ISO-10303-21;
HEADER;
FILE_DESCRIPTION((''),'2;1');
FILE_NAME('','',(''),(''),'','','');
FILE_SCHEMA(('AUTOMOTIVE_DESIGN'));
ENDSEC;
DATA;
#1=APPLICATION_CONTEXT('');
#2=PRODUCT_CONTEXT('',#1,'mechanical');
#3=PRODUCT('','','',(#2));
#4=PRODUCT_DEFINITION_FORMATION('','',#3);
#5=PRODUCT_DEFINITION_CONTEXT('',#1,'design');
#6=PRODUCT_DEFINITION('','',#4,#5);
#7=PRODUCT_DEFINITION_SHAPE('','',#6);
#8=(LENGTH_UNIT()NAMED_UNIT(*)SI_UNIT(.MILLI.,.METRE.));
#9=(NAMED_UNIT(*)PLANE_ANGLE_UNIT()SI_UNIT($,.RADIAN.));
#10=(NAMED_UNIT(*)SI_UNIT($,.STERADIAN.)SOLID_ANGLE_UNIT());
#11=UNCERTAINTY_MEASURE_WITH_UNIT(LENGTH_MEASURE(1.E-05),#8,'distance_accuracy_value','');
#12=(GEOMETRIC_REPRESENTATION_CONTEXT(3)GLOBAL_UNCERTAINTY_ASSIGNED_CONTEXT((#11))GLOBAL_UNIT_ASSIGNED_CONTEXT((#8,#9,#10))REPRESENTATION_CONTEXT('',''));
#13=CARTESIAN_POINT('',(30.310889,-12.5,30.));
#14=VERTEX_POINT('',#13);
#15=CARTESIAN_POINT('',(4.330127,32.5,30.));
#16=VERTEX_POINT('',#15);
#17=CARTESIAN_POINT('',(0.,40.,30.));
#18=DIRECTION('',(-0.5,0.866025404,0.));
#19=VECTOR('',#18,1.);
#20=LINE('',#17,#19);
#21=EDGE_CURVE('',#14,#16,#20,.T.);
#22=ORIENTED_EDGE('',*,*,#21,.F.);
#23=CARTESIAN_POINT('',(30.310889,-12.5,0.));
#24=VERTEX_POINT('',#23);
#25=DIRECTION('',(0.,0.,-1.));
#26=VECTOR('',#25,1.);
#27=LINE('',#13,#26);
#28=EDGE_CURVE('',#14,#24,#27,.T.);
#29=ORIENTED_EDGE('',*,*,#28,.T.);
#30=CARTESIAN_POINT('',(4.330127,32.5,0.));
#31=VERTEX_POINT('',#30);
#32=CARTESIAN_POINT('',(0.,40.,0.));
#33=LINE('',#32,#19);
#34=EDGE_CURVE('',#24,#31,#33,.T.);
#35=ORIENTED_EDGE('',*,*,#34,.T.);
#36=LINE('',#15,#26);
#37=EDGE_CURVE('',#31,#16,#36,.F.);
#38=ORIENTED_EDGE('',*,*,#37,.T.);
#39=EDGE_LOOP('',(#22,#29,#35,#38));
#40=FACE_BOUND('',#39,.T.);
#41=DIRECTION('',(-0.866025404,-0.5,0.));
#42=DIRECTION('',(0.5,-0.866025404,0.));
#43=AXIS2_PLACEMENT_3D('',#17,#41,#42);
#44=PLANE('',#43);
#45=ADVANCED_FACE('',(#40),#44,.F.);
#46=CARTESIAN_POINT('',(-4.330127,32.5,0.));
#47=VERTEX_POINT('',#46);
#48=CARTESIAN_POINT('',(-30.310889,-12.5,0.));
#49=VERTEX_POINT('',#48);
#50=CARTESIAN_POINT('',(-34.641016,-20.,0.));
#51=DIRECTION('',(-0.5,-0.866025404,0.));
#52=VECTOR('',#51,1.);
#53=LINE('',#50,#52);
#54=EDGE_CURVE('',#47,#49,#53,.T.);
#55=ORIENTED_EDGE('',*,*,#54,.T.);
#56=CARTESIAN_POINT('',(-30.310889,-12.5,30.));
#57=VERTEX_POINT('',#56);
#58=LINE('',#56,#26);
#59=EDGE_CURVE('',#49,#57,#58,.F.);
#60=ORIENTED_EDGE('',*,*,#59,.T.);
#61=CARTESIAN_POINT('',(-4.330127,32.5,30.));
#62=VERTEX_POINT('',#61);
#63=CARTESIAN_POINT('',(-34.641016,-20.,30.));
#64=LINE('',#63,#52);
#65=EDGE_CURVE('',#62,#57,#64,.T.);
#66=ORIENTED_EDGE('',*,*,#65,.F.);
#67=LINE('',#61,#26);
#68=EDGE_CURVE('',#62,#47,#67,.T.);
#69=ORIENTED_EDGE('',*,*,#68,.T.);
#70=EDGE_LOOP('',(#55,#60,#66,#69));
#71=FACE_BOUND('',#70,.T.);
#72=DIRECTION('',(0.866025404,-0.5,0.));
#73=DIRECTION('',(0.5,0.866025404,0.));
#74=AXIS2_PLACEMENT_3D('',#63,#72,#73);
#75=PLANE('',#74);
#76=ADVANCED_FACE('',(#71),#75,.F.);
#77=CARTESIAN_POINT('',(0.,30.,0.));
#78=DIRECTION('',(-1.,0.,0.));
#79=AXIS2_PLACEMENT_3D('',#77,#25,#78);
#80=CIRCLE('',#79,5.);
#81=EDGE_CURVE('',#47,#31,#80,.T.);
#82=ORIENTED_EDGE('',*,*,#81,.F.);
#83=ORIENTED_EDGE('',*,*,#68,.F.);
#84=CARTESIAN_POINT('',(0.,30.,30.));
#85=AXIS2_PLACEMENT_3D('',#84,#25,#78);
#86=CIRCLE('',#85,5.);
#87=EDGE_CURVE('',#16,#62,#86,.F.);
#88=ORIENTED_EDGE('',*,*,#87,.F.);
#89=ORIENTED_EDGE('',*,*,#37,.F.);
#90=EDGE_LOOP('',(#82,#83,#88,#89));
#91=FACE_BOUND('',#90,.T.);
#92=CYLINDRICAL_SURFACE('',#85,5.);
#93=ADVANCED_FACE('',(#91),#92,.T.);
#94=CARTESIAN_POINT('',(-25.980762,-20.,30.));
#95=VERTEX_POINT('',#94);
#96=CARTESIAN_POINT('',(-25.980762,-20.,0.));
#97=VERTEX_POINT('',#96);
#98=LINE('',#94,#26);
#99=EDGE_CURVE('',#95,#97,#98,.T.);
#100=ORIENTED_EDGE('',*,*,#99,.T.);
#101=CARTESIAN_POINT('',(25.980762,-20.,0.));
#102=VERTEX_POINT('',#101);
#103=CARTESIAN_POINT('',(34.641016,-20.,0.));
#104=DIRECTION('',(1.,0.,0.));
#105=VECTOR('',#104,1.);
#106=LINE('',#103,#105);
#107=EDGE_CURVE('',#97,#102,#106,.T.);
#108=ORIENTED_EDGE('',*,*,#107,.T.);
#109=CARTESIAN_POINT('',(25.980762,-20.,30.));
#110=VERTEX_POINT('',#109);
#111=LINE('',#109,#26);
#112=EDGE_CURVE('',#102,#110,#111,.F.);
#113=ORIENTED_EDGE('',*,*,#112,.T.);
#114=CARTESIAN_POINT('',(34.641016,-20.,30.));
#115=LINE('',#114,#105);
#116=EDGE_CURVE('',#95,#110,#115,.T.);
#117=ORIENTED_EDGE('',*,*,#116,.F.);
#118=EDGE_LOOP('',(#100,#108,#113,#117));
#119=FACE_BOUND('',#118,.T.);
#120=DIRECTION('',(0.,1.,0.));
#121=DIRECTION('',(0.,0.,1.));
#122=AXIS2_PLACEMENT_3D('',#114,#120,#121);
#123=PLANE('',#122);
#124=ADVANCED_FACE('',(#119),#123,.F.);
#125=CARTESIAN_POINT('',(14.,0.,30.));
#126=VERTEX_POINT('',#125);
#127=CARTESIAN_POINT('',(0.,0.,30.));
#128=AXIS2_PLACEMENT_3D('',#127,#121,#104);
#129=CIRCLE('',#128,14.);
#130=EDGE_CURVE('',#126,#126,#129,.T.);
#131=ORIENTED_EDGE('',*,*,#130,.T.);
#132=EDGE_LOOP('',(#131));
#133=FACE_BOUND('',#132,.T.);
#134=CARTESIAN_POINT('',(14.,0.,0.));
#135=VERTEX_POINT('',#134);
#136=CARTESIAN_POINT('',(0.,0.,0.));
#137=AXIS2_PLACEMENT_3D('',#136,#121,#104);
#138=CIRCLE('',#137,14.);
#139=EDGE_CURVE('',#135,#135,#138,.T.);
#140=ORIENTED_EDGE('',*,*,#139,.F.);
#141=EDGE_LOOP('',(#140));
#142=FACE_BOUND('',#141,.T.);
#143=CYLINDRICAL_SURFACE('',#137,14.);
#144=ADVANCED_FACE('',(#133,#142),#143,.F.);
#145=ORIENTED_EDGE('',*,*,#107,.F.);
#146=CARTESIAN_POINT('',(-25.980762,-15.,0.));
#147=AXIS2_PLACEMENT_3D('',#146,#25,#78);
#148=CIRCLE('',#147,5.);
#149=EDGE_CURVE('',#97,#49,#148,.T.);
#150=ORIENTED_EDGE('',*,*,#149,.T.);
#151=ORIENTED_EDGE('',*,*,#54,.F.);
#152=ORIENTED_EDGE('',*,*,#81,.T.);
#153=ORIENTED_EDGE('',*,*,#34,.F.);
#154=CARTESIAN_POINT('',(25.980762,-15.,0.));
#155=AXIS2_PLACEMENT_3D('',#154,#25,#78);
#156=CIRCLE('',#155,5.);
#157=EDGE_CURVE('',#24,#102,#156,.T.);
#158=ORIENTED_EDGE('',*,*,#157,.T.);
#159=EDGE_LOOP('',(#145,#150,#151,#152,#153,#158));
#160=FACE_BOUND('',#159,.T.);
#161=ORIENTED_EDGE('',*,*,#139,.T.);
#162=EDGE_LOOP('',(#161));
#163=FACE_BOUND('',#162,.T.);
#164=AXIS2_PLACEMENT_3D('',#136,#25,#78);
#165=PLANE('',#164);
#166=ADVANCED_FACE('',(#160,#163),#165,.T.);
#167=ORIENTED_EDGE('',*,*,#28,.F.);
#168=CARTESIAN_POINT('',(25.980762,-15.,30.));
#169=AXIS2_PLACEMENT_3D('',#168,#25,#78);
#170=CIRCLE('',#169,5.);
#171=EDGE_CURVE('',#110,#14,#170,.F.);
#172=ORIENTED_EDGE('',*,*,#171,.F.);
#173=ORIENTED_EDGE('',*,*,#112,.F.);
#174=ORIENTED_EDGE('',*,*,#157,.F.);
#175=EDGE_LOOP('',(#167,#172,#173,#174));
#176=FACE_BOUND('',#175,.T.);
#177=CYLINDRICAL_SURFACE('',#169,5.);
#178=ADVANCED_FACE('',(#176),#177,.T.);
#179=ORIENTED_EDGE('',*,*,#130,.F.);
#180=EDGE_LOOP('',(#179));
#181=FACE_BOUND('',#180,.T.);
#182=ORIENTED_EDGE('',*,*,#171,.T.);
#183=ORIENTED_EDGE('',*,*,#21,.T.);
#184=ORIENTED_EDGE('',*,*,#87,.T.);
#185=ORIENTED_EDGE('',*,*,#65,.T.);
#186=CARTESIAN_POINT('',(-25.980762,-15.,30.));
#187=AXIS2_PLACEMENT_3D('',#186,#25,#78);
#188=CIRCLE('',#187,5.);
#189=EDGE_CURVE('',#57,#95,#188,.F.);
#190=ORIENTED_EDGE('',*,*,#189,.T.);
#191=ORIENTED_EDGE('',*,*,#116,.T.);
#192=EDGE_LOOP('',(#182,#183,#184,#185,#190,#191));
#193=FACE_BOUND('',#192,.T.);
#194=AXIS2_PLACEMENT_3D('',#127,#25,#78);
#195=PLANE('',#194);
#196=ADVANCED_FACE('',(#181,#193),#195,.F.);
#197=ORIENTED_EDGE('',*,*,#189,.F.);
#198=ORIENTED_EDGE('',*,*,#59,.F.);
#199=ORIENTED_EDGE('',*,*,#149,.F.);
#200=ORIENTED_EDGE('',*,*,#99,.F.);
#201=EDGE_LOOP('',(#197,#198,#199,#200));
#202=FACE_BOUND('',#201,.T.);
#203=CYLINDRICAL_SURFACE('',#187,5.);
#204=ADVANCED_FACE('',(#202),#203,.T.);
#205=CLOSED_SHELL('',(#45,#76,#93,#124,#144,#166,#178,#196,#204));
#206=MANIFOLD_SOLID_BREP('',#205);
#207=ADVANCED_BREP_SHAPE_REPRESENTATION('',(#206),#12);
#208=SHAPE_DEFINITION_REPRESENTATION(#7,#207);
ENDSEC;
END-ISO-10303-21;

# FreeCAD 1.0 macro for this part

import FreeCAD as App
import Part
import Sketcher

V = App.Vector
Q = App.Units.Quantity


def edges_at(feature, points):
    """Names of the edges that pass closest to the given points."""
    edges = feature.Shape.Edges
    near = lambda p: min(range(len(edges)), key=lambda i: edges[i].distToShape(Part.Vertex(*p))[0])
    return sorted({f"Edge{near(p) + 1}" for p in points})

doc = App.newDocument("Part")
body = doc.addObject("PartDesign::Body", "Body")

# Sketch on XY plane
sketch1 = body.newObject("Sketcher::SketchObject", "Sketch")
sketch1.AttachmentSupport = (doc.getObject("XY_Plane"), [""])
sketch1.MapMode = "FlatFace"
sketch1.addGeometry(Part.LineSegment(V(34.641016, -20, 0), V(0, 40, 0)), False)
sketch1.addGeometry(Part.LineSegment(V(0, 40, 0), V(-34.641016, -20, 0)), False)
sketch1.addGeometry(Part.LineSegment(V(-34.641016, -20, 0), V(34.641016, -20, 0)), False)
sketch1.addConstraint(Sketcher.Constraint("Coincident", 0, 2, 1, 1))
sketch1.addConstraint(Sketcher.Constraint("Coincident", 1, 2, 2, 1))
sketch1.addConstraint(Sketcher.Constraint("Coincident", 2, 2, 0, 1))
sketch1.addConstraint(Sketcher.Constraint("Horizontal", 2))
sketch1.addConstraint(Sketcher.Constraint("PointOnObject", 0, 2, -2))
sketch1.addConstraint(Sketcher.Constraint("Equal", 0, 1))
sketch1.addConstraint(Sketcher.Constraint("Angle", 0, Q("120 deg")))
sketch1.addConstraint(Sketcher.Constraint("DistanceY", -1, 1, 0, 2, 40.0))
sketch1.addConstraint(Sketcher.Constraint("DistanceY", 1, 2, -1, 1, 20.0))
pad1 = body.newObject("PartDesign::Pad", "Pad")
pad1.Profile = sketch1
pad1.Length = 30
doc.recompute()

fillet = body.newObject("PartDesign::Fillet", "Fillet")
fillet.Base = (pad1, edges_at(pad1, [(0, 40, 15), (34.641, -20, 15), (-34.641, -20, 15)]))
fillet.Radius = 5

# Sketch on XY plane
sketch2 = body.newObject("Sketcher::SketchObject", "Sketch001")
sketch2.AttachmentSupport = (doc.getObject("XY_Plane"), [""])
sketch2.MapMode = "FlatFace"
sketch2.AttachmentOffset = App.Placement(V(0, 0, 30), App.Rotation())
sketch2.addGeometry(Part.Circle(V(0, 0, 0), V(0, 0, 1), 14), False)
sketch2.addConstraint(Sketcher.Constraint("Coincident", 0, 3, -1, 1))
sketch2.addConstraint(Sketcher.Constraint("Diameter", 0, 28.0))
pocket1 = body.newObject("PartDesign::Pocket", "Pocket")
pocket1.Profile = sketch2
pocket1.Type = "ThroughAll"

doc.recompute()
